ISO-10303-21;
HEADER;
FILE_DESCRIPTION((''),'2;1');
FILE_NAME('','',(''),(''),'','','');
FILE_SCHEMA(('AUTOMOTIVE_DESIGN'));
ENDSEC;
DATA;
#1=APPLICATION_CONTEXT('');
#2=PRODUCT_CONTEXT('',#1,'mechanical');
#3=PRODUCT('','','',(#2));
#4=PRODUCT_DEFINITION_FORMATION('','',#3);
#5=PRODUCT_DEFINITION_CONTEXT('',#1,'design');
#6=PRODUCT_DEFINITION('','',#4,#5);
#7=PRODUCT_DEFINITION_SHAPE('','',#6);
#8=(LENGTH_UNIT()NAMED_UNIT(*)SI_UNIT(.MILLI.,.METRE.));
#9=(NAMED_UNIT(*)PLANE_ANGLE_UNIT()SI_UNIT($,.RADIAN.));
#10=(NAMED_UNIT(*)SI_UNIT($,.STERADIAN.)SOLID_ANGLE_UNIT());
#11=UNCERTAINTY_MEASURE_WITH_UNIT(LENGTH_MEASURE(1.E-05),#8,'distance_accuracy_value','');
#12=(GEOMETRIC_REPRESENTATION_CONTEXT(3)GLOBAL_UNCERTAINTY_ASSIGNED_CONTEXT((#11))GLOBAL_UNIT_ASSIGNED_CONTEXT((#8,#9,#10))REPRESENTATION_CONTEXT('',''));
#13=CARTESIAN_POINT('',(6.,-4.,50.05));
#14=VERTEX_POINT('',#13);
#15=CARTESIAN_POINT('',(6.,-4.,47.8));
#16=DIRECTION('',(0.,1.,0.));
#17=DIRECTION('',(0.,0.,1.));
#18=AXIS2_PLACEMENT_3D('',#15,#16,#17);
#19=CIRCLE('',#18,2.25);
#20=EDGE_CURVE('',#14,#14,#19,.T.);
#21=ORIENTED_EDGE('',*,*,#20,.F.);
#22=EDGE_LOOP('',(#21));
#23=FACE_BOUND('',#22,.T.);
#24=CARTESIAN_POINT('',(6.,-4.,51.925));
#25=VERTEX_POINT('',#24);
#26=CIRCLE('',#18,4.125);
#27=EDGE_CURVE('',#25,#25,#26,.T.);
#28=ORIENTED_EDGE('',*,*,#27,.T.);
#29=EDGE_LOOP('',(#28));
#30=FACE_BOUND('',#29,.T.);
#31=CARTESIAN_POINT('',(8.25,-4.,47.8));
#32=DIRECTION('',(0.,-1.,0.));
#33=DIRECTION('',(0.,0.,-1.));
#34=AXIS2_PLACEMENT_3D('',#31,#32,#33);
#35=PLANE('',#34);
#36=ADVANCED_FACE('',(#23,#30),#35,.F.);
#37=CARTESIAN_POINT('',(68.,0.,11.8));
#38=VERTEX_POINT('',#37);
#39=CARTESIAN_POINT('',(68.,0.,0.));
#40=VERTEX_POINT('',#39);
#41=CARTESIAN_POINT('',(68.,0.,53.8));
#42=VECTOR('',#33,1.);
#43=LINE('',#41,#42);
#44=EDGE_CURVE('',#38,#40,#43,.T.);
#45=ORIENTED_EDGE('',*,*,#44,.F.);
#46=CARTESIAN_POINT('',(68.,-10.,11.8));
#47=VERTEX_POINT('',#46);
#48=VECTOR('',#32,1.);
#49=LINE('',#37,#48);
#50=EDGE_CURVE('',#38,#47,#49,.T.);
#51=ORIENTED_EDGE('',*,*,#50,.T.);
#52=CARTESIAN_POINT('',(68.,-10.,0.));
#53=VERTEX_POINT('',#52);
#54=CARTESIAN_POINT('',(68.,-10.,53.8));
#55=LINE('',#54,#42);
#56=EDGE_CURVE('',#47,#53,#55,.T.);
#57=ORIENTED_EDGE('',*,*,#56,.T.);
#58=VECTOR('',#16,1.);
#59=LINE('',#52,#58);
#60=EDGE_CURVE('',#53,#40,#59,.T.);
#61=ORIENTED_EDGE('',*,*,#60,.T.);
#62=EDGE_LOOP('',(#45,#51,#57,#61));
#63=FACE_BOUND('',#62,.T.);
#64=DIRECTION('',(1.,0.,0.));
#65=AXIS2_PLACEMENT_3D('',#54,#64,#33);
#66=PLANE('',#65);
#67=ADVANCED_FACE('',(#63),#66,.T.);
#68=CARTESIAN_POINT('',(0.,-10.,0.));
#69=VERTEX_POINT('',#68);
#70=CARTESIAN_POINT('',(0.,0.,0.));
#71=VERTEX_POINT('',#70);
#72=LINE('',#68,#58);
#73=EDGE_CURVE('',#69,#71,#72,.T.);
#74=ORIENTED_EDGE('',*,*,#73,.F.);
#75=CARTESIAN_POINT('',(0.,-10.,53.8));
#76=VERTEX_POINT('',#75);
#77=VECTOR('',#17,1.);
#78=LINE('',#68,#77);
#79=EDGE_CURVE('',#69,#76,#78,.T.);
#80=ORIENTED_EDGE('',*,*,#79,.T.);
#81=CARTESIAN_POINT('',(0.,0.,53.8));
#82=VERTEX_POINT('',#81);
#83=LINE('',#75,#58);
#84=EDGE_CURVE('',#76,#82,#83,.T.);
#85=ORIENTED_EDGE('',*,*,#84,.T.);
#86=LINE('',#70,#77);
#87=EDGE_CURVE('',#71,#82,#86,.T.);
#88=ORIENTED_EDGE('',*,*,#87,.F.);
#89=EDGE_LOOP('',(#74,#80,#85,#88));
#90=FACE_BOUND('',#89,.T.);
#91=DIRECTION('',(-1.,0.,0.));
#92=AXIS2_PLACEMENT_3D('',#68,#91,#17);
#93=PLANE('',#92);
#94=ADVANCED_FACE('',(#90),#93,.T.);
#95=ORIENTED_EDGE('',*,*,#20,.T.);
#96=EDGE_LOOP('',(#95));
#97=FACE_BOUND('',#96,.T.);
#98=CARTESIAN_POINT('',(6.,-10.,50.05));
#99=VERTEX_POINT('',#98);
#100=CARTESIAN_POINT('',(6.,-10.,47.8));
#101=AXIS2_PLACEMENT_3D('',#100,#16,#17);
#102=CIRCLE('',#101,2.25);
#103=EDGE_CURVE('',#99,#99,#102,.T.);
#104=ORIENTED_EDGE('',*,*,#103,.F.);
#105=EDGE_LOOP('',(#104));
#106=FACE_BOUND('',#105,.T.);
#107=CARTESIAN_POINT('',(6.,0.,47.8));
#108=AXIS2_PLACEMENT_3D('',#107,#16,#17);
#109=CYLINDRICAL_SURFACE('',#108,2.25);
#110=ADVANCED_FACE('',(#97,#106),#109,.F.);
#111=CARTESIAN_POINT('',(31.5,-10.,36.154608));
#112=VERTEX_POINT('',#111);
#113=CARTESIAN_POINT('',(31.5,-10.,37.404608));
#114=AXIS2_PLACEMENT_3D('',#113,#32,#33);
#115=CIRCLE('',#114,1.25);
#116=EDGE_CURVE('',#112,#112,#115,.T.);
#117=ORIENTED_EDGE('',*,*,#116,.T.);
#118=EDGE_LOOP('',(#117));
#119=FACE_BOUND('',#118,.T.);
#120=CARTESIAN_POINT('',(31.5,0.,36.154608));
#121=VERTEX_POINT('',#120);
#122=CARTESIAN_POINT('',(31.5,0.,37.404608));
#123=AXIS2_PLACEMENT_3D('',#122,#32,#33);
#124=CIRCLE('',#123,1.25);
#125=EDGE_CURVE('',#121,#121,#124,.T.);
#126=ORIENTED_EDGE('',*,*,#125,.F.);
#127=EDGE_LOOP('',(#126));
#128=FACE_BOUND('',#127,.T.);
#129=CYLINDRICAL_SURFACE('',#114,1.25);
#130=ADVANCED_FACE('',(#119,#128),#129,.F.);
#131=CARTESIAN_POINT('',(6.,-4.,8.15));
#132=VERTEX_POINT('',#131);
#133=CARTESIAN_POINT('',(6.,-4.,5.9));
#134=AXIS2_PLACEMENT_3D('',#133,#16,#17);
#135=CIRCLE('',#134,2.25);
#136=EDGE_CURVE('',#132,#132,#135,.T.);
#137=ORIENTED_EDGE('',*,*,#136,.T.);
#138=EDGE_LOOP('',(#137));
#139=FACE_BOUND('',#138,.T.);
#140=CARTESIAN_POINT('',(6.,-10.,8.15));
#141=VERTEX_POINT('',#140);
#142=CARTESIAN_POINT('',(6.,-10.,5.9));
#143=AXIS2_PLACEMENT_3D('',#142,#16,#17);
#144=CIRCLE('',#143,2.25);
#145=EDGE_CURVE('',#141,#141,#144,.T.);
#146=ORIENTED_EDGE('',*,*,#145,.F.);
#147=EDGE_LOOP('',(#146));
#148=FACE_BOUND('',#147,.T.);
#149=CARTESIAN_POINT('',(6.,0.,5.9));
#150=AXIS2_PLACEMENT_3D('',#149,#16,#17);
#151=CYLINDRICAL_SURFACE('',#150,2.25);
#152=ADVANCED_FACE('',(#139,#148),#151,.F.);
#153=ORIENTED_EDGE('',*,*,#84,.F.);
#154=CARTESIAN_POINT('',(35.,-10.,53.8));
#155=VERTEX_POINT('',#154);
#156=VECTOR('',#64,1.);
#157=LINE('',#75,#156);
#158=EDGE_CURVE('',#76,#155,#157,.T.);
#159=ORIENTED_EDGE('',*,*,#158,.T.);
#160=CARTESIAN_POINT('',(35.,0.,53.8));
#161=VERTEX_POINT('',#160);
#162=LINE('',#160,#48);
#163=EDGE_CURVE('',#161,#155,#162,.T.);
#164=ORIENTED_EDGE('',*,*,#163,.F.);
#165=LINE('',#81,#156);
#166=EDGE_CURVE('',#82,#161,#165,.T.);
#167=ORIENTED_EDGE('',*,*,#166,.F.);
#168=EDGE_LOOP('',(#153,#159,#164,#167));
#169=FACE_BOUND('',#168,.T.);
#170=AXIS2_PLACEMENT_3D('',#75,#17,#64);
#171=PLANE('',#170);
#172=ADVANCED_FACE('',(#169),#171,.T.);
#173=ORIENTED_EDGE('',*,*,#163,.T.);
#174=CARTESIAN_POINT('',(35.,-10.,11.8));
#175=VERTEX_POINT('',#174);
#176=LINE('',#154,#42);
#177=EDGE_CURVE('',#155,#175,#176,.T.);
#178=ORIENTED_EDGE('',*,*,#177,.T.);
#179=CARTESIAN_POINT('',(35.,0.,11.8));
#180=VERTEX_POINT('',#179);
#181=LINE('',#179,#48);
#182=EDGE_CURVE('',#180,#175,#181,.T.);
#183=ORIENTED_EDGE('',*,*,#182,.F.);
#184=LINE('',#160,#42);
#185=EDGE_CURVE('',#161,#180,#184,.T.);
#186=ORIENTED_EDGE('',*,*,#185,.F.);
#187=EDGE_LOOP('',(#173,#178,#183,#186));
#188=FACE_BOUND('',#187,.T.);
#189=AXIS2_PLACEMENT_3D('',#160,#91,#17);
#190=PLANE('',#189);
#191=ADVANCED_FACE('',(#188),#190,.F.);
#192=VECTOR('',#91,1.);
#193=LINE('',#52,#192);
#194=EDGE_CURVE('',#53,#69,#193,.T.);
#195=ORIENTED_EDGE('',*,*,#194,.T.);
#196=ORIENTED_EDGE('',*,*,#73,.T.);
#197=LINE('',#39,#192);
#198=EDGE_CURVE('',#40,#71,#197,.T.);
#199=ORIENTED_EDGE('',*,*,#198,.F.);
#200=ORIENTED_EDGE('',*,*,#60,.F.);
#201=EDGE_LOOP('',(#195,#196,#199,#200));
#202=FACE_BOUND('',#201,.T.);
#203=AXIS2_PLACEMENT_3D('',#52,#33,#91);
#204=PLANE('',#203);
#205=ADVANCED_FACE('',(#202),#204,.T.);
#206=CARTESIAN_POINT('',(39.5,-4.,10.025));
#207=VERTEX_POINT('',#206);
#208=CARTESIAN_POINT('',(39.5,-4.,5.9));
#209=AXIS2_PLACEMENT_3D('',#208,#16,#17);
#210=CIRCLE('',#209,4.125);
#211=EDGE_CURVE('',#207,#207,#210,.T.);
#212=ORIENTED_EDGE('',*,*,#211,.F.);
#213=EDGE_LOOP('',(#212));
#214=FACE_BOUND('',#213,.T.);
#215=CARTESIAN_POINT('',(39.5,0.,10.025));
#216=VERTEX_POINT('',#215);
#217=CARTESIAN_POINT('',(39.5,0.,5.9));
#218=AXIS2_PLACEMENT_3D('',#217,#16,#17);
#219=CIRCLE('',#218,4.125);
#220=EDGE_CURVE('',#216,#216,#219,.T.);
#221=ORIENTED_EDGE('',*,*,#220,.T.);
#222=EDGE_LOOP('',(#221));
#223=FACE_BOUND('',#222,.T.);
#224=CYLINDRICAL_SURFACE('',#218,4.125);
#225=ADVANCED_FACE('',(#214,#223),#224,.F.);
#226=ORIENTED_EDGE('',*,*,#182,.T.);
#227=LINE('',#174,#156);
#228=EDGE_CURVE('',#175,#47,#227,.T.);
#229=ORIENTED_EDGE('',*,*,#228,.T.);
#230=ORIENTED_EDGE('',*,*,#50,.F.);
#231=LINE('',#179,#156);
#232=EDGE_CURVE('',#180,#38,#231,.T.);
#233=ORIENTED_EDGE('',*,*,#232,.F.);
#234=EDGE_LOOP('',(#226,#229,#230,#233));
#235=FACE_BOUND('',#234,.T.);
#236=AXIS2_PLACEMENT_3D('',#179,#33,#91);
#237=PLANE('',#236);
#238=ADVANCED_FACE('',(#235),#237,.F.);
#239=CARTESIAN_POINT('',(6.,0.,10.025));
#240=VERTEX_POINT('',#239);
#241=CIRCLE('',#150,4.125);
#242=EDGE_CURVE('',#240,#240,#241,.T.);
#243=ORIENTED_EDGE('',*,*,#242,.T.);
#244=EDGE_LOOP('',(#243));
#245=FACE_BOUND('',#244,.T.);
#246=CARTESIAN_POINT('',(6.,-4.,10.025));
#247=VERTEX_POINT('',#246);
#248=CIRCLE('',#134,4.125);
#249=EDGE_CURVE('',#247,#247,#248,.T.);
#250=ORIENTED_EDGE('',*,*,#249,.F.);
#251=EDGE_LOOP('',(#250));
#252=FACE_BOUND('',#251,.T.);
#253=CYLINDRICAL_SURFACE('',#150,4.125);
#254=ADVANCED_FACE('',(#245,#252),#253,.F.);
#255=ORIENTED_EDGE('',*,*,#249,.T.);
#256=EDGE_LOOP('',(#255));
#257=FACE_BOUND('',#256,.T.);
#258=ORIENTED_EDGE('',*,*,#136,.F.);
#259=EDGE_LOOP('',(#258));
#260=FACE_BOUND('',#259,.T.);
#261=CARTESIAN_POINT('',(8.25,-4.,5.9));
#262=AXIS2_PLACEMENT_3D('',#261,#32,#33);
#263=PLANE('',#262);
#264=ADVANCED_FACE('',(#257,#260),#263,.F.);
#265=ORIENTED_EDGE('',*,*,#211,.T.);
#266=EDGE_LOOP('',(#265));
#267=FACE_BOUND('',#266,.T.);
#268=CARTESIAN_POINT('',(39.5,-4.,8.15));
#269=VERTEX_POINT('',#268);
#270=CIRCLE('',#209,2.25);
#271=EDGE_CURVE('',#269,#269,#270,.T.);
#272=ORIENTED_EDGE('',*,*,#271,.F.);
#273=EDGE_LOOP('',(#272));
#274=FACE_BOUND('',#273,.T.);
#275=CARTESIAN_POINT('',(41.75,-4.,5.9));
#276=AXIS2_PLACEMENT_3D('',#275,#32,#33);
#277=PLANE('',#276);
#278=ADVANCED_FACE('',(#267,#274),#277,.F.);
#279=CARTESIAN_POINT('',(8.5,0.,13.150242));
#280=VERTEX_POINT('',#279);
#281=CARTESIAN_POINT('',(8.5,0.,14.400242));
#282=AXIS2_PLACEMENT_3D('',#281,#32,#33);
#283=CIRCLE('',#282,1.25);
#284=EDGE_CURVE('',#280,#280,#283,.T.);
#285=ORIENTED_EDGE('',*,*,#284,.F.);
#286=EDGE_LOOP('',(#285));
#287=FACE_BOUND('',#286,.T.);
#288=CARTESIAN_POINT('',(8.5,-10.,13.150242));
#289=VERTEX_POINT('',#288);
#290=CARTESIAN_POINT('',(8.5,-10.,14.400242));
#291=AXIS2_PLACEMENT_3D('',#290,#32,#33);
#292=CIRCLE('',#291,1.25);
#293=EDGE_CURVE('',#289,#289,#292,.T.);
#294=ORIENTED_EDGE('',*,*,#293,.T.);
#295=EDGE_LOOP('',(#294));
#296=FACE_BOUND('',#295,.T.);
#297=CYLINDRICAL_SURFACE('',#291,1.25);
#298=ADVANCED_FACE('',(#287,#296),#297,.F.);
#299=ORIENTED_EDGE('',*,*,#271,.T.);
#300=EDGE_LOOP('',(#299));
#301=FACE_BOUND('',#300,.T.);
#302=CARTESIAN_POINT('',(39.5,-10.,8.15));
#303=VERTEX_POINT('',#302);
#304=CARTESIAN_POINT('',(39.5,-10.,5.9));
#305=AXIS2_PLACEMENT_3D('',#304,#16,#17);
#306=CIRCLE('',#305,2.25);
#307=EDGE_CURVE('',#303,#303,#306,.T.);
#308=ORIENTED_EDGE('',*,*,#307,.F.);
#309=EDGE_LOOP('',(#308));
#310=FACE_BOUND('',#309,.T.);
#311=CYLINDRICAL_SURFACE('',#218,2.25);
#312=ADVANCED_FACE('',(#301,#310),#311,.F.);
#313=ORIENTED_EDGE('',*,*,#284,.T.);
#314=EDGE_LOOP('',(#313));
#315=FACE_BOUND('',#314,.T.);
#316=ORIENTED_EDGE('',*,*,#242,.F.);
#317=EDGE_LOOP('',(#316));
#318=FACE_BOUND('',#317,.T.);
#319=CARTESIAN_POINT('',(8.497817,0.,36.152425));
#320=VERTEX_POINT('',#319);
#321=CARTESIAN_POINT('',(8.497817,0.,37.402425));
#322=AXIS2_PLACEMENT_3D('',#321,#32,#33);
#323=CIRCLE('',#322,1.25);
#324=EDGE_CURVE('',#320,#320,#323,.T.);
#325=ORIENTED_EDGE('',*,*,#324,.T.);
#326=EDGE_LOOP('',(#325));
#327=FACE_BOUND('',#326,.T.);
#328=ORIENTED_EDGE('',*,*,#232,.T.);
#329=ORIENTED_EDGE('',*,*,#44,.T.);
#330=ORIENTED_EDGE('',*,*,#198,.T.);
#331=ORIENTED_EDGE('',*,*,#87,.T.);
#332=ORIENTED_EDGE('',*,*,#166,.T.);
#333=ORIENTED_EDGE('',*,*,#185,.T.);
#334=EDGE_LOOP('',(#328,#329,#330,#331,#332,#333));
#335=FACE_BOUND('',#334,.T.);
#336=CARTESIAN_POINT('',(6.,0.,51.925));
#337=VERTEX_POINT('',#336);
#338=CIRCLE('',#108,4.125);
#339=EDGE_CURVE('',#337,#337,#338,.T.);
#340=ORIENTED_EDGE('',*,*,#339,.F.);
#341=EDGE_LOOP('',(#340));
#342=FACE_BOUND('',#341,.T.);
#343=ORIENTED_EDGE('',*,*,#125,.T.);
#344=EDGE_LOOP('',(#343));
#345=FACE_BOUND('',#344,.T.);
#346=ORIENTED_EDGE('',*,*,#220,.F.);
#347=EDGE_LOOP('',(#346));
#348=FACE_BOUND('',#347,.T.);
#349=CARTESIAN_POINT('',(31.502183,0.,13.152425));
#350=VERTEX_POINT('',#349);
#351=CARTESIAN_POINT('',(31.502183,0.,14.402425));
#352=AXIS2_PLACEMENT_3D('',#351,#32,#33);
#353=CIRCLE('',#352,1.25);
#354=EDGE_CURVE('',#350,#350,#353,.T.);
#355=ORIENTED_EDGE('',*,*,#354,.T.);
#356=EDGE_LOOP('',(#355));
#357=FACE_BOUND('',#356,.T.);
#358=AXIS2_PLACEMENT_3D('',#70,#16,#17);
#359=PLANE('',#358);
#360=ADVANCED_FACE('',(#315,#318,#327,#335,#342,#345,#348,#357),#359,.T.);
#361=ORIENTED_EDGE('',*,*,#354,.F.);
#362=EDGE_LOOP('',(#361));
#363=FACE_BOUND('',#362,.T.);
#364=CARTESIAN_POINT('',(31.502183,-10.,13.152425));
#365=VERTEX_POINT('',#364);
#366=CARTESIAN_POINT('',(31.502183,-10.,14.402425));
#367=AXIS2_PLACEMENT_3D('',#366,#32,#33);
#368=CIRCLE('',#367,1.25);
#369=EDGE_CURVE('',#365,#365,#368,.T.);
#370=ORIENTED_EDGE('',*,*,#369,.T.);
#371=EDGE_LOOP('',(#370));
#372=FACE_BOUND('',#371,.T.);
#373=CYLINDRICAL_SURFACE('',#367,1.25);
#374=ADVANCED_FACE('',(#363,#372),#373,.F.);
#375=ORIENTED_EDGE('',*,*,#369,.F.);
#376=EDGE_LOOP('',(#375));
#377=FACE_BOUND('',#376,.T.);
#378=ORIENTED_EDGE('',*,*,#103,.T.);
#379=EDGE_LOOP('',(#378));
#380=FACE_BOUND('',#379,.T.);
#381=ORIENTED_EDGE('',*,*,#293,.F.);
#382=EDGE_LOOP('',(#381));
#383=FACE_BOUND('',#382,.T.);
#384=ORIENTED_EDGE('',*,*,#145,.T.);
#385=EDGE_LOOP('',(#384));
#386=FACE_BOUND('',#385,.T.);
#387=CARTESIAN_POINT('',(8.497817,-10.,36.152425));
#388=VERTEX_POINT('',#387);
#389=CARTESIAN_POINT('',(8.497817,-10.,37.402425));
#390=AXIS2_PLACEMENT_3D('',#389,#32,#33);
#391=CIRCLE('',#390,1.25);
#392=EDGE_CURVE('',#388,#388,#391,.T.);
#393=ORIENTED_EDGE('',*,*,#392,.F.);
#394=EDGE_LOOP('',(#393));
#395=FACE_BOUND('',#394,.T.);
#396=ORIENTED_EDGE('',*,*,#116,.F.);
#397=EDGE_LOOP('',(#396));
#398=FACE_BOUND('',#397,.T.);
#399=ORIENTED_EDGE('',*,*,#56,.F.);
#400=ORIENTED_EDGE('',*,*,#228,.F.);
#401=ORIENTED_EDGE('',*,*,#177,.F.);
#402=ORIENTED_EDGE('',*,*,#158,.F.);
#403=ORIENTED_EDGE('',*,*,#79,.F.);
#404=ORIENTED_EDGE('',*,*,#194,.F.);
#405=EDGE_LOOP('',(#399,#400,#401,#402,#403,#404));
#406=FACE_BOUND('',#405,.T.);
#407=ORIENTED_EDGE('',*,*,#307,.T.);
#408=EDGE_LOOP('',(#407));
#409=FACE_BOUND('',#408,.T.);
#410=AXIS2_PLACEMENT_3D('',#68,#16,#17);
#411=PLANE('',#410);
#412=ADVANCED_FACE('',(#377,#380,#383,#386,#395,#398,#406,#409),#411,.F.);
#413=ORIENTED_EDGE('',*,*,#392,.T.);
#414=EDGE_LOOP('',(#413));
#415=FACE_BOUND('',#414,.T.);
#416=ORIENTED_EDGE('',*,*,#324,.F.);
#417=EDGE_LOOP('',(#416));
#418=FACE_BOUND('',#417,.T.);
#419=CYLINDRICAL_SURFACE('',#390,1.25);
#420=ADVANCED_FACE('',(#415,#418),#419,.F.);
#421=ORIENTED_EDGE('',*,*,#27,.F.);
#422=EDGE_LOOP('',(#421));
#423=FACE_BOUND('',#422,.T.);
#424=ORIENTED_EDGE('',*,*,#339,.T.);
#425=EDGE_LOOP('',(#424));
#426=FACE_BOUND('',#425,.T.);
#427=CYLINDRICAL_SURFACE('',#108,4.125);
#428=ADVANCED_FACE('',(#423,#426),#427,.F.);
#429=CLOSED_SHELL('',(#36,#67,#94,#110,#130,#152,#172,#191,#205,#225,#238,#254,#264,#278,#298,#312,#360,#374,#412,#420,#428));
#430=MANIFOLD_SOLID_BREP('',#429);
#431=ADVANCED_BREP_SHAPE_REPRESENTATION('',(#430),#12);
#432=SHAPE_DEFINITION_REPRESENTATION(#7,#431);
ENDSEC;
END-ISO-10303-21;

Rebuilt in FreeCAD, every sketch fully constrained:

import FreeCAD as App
import Part
import Sketcher

V = App.Vector


def add_polygon(sketch, points):
    """Adds a closed chain of lines whose ends are joined by coincident constraints."""
    first, n = sketch.GeometryCount, len(points)
    for a, b in zip(points, points[1:] + points[:1]):
        sketch.addGeometry(Part.LineSegment(App.Vector(*a, 0), App.Vector(*b, 0)), False)
    for i in range(n):
        sketch.addConstraint(Sketcher.Constraint("Coincident", first + i, 2, first + (i + 1) % n, 1))

doc = App.newDocument("Part")
body = doc.addObject("PartDesign::Body", "Body")

# Sketch on XZ plane
sketch1 = body.newObject("Sketcher::SketchObject", "Sketch")
sketch1.AttachmentSupport = (doc.getObject("XZ_Plane"), [""])
sketch1.MapMode = "FlatFace"
add_polygon(sketch1, [(0, 0), (0, 53.8), (68, 53.8), (68, 0)])  # lines 0-3
sketch1.addConstraint([
    Sketcher.Constraint("Vertical", 0),
    Sketcher.Constraint("Horizontal", 1),
    Sketcher.Constraint("Vertical", 2),
    Sketcher.Constraint("Horizontal", 3),
    Sketcher.Constraint("Coincident", 3, 2, -1, 1),
    Sketcher.Constraint("DistanceX", 1, 1, 1, 2, 68.0),
    Sketcher.Constraint("DistanceY", 0, 1, 0, 2, 53.8),
])
pad1 = body.newObject("PartDesign::Pad", "Pad")
pad1.Profile = sketch1
pad1.Length = 10

# Sketch on XZ plane
sketch2 = body.newObject("Sketcher::SketchObject", "Sketch001")
sketch2.AttachmentSupport = (doc.getObject("XZ_Plane"), [""])
sketch2.MapMode = "FlatFace"
sketch2.AttachmentOffset = App.Placement(V(0, 0, 10), App.Rotation())
add_polygon(sketch2, [(35, 53.8), (35, 11.8), (68, 11.8), (68, 53.8)])  # lines 0-3
sketch2.addConstraint([
    Sketcher.Constraint("Vertical", 0),
    Sketcher.Constraint("Horizontal", 1),
    Sketcher.Constraint("Vertical", 2),
    Sketcher.Constraint("Horizontal", 3),
    Sketcher.Constraint("DistanceX", 1, 1, 1, 2, 33.0),
    Sketcher.Constraint("DistanceY", 0, 2, 0, 1, 42.0),
    Sketcher.Constraint("DistanceX", -1, 1, 0, 2, 35.0),
    Sketcher.Constraint("DistanceY", -1, 1, 0, 2, 11.8),
])
pocket1 = body.newObject("PartDesign::Pocket", "Pocket")
pocket1.Profile = sketch2
pocket1.Type = "ThroughAll"

# Sketch on XZ plane
sketch3 = body.newObject("Sketcher::SketchObject", "Sketch002")
sketch3.AttachmentSupport = (doc.getObject("XZ_Plane"), [""])
sketch3.MapMode = "FlatFace"
sketch3.AttachmentOffset = App.Placement(V(0, 0, 10), App.Rotation())
sketch3.addGeometry([
    Part.Circle(V(31.502183, 14.402425, 0), V(0, 0, 1), 1.25),
    Part.Circle(V(31.5, 37.404608, 0), V(0, 0, 1), 1.25),
    Part.Circle(V(8.497817, 37.402425, 0), V(0, 0, 1), 1.25),
    Part.Circle(V(8.5, 14.400242, 0), V(0, 0, 1), 1.25),
], False)
sketch3.addConstraint([
    Sketcher.Constraint("Equal", 0, 1),
    Sketcher.Constraint("Equal", 1, 2),
    Sketcher.Constraint("Equal", 2, 3),
    Sketcher.Constraint("Diameter", 0, 2.5),
    Sketcher.Constraint("DistanceY", 0, 3, 2, 3, 23.0),
    Sketcher.Constraint("DistanceX", 3, 3, 1, 3, 23.0),
    Sketcher.Constraint("DistanceX", -1, 1, 1, 3, 31.5),
    Sketcher.Constraint("DistanceY", -1, 1, 1, 3, 37.404608),
    Sketcher.Constraint("DistanceY", -1, 1, 3, 3, 14.400242),
    Sketcher.Constraint("DistanceX", -1, 1, 0, 3, 31.502183),
    Sketcher.Constraint("DistanceY", -1, 1, 0, 3, 14.402425),
    Sketcher.Constraint("DistanceX", -1, 1, 2, 3, 8.497817),
])
doc.recompute()
hole = body.newObject("PartDesign::Hole", "Hole")
hole.Profile = sketch3
hole.ThreadType = "None"
hole.Diameter = 2.5
hole.DepthType = "Dimension"
hole.Depth = 10
hole.DrillPoint = "Flat"

# Sketch on XZ plane
sketch4 = body.newObject("Sketcher::SketchObject", "Sketch003")
sketch4.AttachmentSupport = (doc.getObject("XZ_Plane"), [""])
sketch4.MapMode = "FlatFace"
sketch4.addGeometry([
    Part.Circle(V(6, 47.8, 0), V(0, 0, 1), 2.25),
    Part.Circle(V(6, 5.9, 0), V(0, 0, 1), 2.25),
    Part.Circle(V(39.5, 5.9, 0), V(0, 0, 1), 2.25),
], False)
sketch4.addConstraint([
    Sketcher.Constraint("Equal", 0, 1),
    Sketcher.Constraint("Equal", 1, 2),
    Sketcher.Constraint("Horizontal", 1, 3, 2, 3),
    Sketcher.Constraint("Vertical", 0, 3, 1, 3),
    Sketcher.Constraint("Diameter", 0, 4.5),
    Sketcher.Constraint("DistanceX", -1, 1, 0, 3, 6.0),
    Sketcher.Constraint("DistanceY", -1, 1, 0, 3, 47.8),
    Sketcher.Constraint("DistanceY", -1, 1, 1, 3, 5.9),
    Sketcher.Constraint("DistanceX", -1, 1, 2, 3, 39.5),
])
doc.recompute()
hole2 = body.newObject("PartDesign::Hole", "Hole001")
hole2.Profile = sketch4
hole2.ThreadType = "None"
hole2.Diameter = 4.5
hole2.DepthType = "Dimension"
hole2.Depth = 10
hole2.DrillPoint = "Flat"
hole2.HoleCutType = "Counterbore"
hole2.HoleCutDiameter = 8.25
hole2.HoleCutDepth = 4
hole2.Reversed = True

doc.recompute()
